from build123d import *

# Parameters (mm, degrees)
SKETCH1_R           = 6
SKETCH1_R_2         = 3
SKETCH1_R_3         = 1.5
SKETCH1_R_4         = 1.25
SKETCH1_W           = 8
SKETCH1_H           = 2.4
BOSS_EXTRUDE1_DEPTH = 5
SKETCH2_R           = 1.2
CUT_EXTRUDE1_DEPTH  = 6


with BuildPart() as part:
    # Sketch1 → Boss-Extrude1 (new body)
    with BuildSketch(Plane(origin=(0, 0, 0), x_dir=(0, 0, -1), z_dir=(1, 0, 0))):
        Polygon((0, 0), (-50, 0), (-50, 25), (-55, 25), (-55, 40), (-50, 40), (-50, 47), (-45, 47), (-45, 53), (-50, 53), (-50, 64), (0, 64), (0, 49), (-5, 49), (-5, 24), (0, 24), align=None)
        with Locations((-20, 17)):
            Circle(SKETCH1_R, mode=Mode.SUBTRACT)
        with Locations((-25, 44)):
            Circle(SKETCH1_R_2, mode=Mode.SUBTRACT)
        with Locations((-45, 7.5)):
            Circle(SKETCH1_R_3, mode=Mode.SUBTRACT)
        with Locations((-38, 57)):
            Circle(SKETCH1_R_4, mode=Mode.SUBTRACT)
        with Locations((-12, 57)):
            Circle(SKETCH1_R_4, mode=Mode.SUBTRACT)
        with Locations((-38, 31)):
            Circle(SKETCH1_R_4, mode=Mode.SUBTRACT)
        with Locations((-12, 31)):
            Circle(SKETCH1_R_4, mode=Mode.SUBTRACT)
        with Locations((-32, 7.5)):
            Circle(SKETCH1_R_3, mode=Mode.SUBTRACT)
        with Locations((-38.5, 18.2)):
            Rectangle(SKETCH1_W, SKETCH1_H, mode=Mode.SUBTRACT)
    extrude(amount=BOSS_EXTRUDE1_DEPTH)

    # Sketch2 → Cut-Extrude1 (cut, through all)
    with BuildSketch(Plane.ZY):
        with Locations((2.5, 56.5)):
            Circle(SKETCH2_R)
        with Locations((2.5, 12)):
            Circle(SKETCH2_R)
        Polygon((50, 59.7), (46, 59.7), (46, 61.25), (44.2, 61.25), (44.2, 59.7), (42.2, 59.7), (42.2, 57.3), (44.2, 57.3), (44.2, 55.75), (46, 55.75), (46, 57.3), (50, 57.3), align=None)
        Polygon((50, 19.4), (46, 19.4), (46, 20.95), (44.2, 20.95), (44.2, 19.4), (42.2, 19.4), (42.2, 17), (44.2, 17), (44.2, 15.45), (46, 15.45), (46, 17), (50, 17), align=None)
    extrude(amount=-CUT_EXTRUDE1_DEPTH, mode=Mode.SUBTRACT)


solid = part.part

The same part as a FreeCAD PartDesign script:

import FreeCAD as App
import Part
import Sketcher

V = App.Vector
Q = App.Units.Quantity

doc = App.newDocument("Part")
params = doc.addObject("Spreadsheet::Sheet", "Params")
for row, (alias, value) in enumerate([
    ("sketch1_diameter", "12 mm"),
    ("sketch1_diameter2", "3 mm"),
    ("sketch1_diameter3", "6 mm"),
    ("sketch1_diameter4", "2.5 mm"),
    ("sketch1_width", "24 mm"),
    ("pad1_length", "5 mm"),
    ("sketch2_diameter", "2.4 mm"),
    ("sketch2_height", "4 mm"),
    ("sketch2_height2", "2 mm"),
    ("sketch2_width", "2.4 mm"),
    ("sketch2_height3", "1.8 mm"),
], start=1):
    params.set(f"A{row}", alias)
    params.set(f"B{row}", "=" + value)
    params.setAlias(f"B{row}", alias)

body = doc.addObject("PartDesign::Body", "Body")

# Sketch on YZ plane
sketch1 = body.newObject("Sketcher::SketchObject", "Sketch")
sketch1.AttachmentSupport = (doc.getObject("YZ_Plane"), [""])
sketch1.MapMode = "FlatFace"
sketch1.addGeometry([
    Part.LineSegment(V(0, 50, 0), V(0, 0, 0)),  # 0
    Part.LineSegment(V(0, 0, 0), V(24, 0, 0)),  # 1
    Part.LineSegment(V(24, 0, 0), V(24, 5, 0)),  # 2
    Part.LineSegment(V(24, 5, 0), V(49, 5, 0)),  # 3
    Part.LineSegment(V(49, 5, 0), V(49, 0, 0)),  # 4
    Part.LineSegment(V(49, 0, 0), V(64, 0, 0)),  # 5
    Part.LineSegment(V(64, 0, 0), V(64, 50, 0)),  # 6
    Part.LineSegment(V(64, 50, 0), V(53, 50, 0)),  # 7
    Part.LineSegment(V(53, 50, 0), V(53, 45, 0)),  # 8
    Part.LineSegment(V(53, 45, 0), V(47, 45, 0)),  # 9
    Part.LineSegment(V(47, 45, 0), V(47, 50, 0)),  # 10
    Part.LineSegment(V(47, 50, 0), V(40, 50, 0)),  # 11
    Part.LineSegment(V(40, 50, 0), V(40, 55, 0)),  # 12
    Part.LineSegment(V(40, 55, 0), V(25, 55, 0)),  # 13
    Part.LineSegment(V(25, 55, 0), V(25, 50, 0)),  # 14
    Part.LineSegment(V(25, 50, 0), V(0, 50, 0)),  # 15
    Part.Circle(V(17, 20, 0), V(0, 0, 1), 6),  # 16
    Part.Circle(V(31, 12, 0), V(0, 0, 1), 1.2),  # 17
    Part.Circle(V(7.5, 32, 0), V(0, 0, 1), 1.5),  # 18
    Part.Circle(V(7.5, 45, 0), V(0, 0, 1), 1.5),  # 19
    Part.LineSegment(V(17, 42.5, 0), V(19.4, 42.5, 0)),  # 20
    Part.LineSegment(V(19.4, 42.5, 0), V(19.4, 34.5, 0)),  # 21
    Part.LineSegment(V(19.4, 34.5, 0), V(17, 34.5, 0)),  # 22
    Part.LineSegment(V(17, 34.5, 0), V(17, 42.5, 0)),  # 23
    Part.Circle(V(31, 38, 0), V(0, 0, 1), 1.2),  # 24
    Part.Circle(V(44, 25, 0), V(0, 0, 1), 3),  # 25
    Part.Circle(V(57, 12, 0), V(0, 0, 1), 1.2),  # 26
    Part.Circle(V(57, 38, 0), V(0, 0, 1), 1.2),  # 27
], False)
sketch1.addConstraint([
    Sketcher.Constraint("Coincident", 0, 2, 1, 1),
    Sketcher.Constraint("Coincident", 1, 2, 2, 1),
    Sketcher.Constraint("Coincident", 2, 2, 3, 1),
    Sketcher.Constraint("Coincident", 3, 2, 4, 1),
    Sketcher.Constraint("Coincident", 4, 2, 5, 1),
    Sketcher.Constraint("Coincident", 5, 2, 6, 1),
    Sketcher.Constraint("Coincident", 6, 2, 7, 1),
    Sketcher.Constraint("Coincident", 7, 2, 8, 1),
    Sketcher.Constraint("Coincident", 8, 2, 9, 1),
    Sketcher.Constraint("Coincident", 9, 2, 10, 1),
    Sketcher.Constraint("Coincident", 10, 2, 11, 1),
    Sketcher.Constraint("Coincident", 11, 2, 12, 1),
    Sketcher.Constraint("Coincident", 12, 2, 13, 1),
    Sketcher.Constraint("Coincident", 13, 2, 14, 1),
    Sketcher.Constraint("Coincident", 14, 2, 15, 1),
    Sketcher.Constraint("Coincident", 15, 2, 0, 1),
    Sketcher.Constraint("Coincident", 20, 2, 21, 1),
    Sketcher.Constraint("Coincident", 21, 2, 22, 1),
    Sketcher.Constraint("Coincident", 22, 2, 23, 1),
    Sketcher.Constraint("Coincident", 23, 2, 20, 1),
    Sketcher.Constraint("Vertical", 0),
    Sketcher.Constraint("Horizontal", 1),
    Sketcher.Constraint("Vertical", 2),
    Sketcher.Constraint("Horizontal", 3),
    Sketcher.Constraint("Vertical", 4),
    Sketcher.Constraint("Horizontal", 5),
    Sketcher.Constraint("Vertical", 6),
    Sketcher.Constraint("Horizontal", 7),
    Sketcher.Constraint("Vertical", 8),
    Sketcher.Constraint("Horizontal", 9),
    Sketcher.Constraint("Vertical", 10),
    Sketcher.Constraint("Horizontal", 11),
    Sketcher.Constraint("Vertical", 12),
    Sketcher.Constraint("Horizontal", 13),
    Sketcher.Constraint("Vertical", 14),
    Sketcher.Constraint("Horizontal", 15),
    Sketcher.Constraint("Horizontal", 20),
    Sketcher.Constraint("Vertical", 21),
    Sketcher.Constraint("Horizontal", 22),
    Sketcher.Constraint("Vertical", 23),
    Sketcher.Constraint("Coincident", 0, 2, -1, 1),
    Sketcher.Constraint("Equal", 18, 19),
    Sketcher.Constraint("Equal", 17, 24),
    Sketcher.Constraint("Equal", 24, 26),
    Sketcher.Constraint("Equal", 26, 27),
    Sketcher.Constraint("PointOnObject", 4, 2, -1),
    Sketcher.Constraint("Horizontal", 17, 3, 26, 3),
    Sketcher.Constraint("Horizontal", 24, 3, 27, 3),
    Sketcher.Constraint("Horizontal", 19, 3, 8, 2),
    Sketcher.Constraint("Horizontal", 7, 2, 10, 2),
    Sketcher.Constraint("Horizontal", 11, 2, 14, 2),
    Sketcher.Constraint("Vertical", 18, 3, 19, 3),
    Sketcher.Constraint("Vertical", 17, 3, 24, 3),
    Sketcher.Constraint("Vertical", 26, 3, 27, 3),
    Sketcher.Constraint("Vertical", 16, 3, 22, 2),
    Sketcher.Constraint("Equal", 5, 13),
    Sketcher.Constraint("Equal", 3, 15),
    Sketcher.Constraint("Equal", 4, 8),
    Sketcher.Constraint("Equal", 10, 12),
    Sketcher.Constraint("Diameter", 16, Q("12 mm")),
    Sketcher.Constraint("Diameter", 18, Q("3 mm")),
    Sketcher.Constraint("Diameter", 25, Q("6 mm")),
    Sketcher.Constraint("Diameter", 17, Q("2.5 mm")),
    Sketcher.Constraint("DistanceX", 1, 1, 1, 2, Q("24 mm")),
    Sketcher.Constraint("DistanceX", 3, 1, 3, 2, Q("25 mm")),
    Sketcher.Constraint("DistanceX", 5, 1, 5, 2, Q("15 mm")),
    Sketcher.Constraint("DistanceX", 7, 2, 7, 1, Q("11 mm")),
    Sketcher.Constraint("DistanceX", 9, 2, 9, 1, Q("6 mm")),
    Sketcher.Constraint("DistanceY", 0, 2, 0, 1, Q("50 mm")),
    Sketcher.Constraint("DistanceY", 2, 1, 2, 2, Q("5 mm")),
    Sketcher.Constraint("DistanceY", 21, 2, 21, 1, Q("8 mm")),
    Sketcher.Constraint("DistanceX", 20, 1, 20, 2, Q("2.4 mm")),
    Sketcher.Constraint("DistanceX", -1, 1, 16, 3, Q("17 mm")),
    Sketcher.Constraint("DistanceY", -1, 1, 16, 3, Q("20 mm")),
    Sketcher.Constraint("DistanceX", -1, 1, 17, 3, Q("31 mm")),
    Sketcher.Constraint("DistanceY", -1, 1, 17, 3, Q("12 mm")),
    Sketcher.Constraint("DistanceY", -1, 1, 18, 3, Q("32 mm")),
    Sketcher.Constraint("DistanceY", -1, 1, 24, 3, Q("38 mm")),
    Sketcher.Constraint("DistanceX", -1, 1, 25, 3, Q("44 mm")),
    Sketcher.Constraint("DistanceY", -1, 1, 25, 3, Q("25 mm")),
    Sketcher.Constraint("DistanceX", -1, 1, 26, 3, Q("57 mm")),
    Sketcher.Constraint("DistanceX", -1, 1, 18, 3, Q("7.5 mm")),
    Sketcher.Constraint("DistanceY", -1, 1, 20, 2, Q("42.5 mm")),
])
sketch1.setExpression("Constraints[59]", "Params.sketch1_diameter")
sketch1.setExpression("Constraints[60]", "Params.sketch1_diameter2")
sketch1.setExpression("Constraints[61]", "Params.sketch1_diameter3")
sketch1.setExpression("Constraints[62]", "Params.sketch1_diameter4")
sketch1.setExpression("Constraints[63]", "Params.sketch1_width")
pad1 = body.newObject("PartDesign::Pad", "Pad")
pad1.Profile = sketch1
pad1.setExpression("Length", "Params.pad1_length")

# Sketch on YZ plane
sketch2 = body.newObject("Sketcher::SketchObject", "Sketch001")
sketch2.AttachmentSupport = (doc.getObject("YZ_Plane"), [""])
sketch2.MapMode = "FlatFace"
sketch2.addGeometry([
    Part.Circle(V(56.5, 2.5, 0), V(0, 0, 1), 1.2),  # 0
    Part.Circle(V(12, 2.5, 0), V(0, 0, 1), 1.2),  # 1
    Part.LineSegment(V(59.7, 50, 0), V(59.7, 46, 0)),  # 2
    Part.LineSegment(V(59.7, 46, 0), V(61.2, 46, 0)),  # 3
    Part.LineSegment(V(61.2, 46, 0), V(61.2, 44.2, 0)),  # 4
    Part.LineSegment(V(61.2, 44.2, 0), V(59.7, 44.2, 0)),  # 5
    Part.LineSegment(V(59.7, 44.2, 0), V(59.7, 42.2, 0)),  # 6
    Part.LineSegment(V(59.7, 42.2, 0), V(57.3, 42.2, 0)),  # 7
    Part.LineSegment(V(57.3, 42.2, 0), V(57.3, 44.2, 0)),  # 8
    Part.LineSegment(V(57.3, 44.2, 0), V(55.8, 44.2, 0)),  # 9
    Part.LineSegment(V(55.8, 44.2, 0), V(55.8, 46, 0)),  # 10
    Part.LineSegment(V(55.8, 46, 0), V(57.3, 46, 0)),  # 11
    Part.LineSegment(V(57.3, 46, 0), V(57.3, 50, 0)),  # 12
    Part.LineSegment(V(57.3, 50, 0), V(59.7, 50, 0)),  # 13
    Part.LineSegment(V(19.4, 50, 0), V(19.4, 46, 0)),  # 14
    Part.LineSegment(V(19.4, 46, 0), V(20.9, 46, 0)),  # 15
    Part.LineSegment(V(20.9, 46, 0), V(20.9, 44.2, 0)),  # 16
    Part.LineSegment(V(20.9, 44.2, 0), V(19.4, 44.2, 0)),  # 17
    Part.LineSegment(V(19.4, 44.2, 0), V(19.4, 42.2, 0)),  # 18
    Part.LineSegment(V(19.4, 42.2, 0), V(17, 42.2, 0)),  # 19
    Part.LineSegment(V(17, 42.2, 0), V(17, 44.2, 0)),  # 20
    Part.LineSegment(V(17, 44.2, 0), V(15.4, 44.2, 0)),  # 21
    Part.LineSegment(V(15.4, 44.2, 0), V(15.4, 46, 0)),  # 22
    Part.LineSegment(V(15.4, 46, 0), V(17, 46, 0)),  # 23
    Part.LineSegment(V(17, 46, 0), V(17, 50, 0)),  # 24
    Part.LineSegment(V(17, 50, 0), V(19.4, 50, 0)),  # 25
], False)
sketch2.addConstraint([
    Sketcher.Constraint("Coincident", 2, 2, 3, 1),
    Sketcher.Constraint("Coincident", 3, 2, 4, 1),
    Sketcher.Constraint("Coincident", 4, 2, 5, 1),
    Sketcher.Constraint("Coincident", 5, 2, 6, 1),
    Sketcher.Constraint("Coincident", 6, 2, 7, 1),
    Sketcher.Constraint("Coincident", 7, 2, 8, 1),
    Sketcher.Constraint("Coincident", 8, 2, 9, 1),
    Sketcher.Constraint("Coincident", 9, 2, 10, 1),
    Sketcher.Constraint("Coincident", 10, 2, 11, 1),
    Sketcher.Constraint("Coincident", 11, 2, 12, 1),
    Sketcher.Constraint("Coincident", 12, 2, 13, 1),
    Sketcher.Constraint("Coincident", 13, 2, 2, 1),
    Sketcher.Constraint("Coincident", 14, 2, 15, 1),
    Sketcher.Constraint("Coincident", 15, 2, 16, 1),
    Sketcher.Constraint("Coincident", 16, 2, 17, 1),
    Sketcher.Constraint("Coincident", 17, 2, 18, 1),
    Sketcher.Constraint("Coincident", 18, 2, 19, 1),
    Sketcher.Constraint("Coincident", 19, 2, 20, 1),
    Sketcher.Constraint("Coincident", 20, 2, 21, 1),
    Sketcher.Constraint("Coincident", 21, 2, 22, 1),
    Sketcher.Constraint("Coincident", 22, 2, 23, 1),
    Sketcher.Constraint("Coincident", 23, 2, 24, 1),
    Sketcher.Constraint("Coincident", 24, 2, 25, 1),
    Sketcher.Constraint("Coincident", 25, 2, 14, 1),
    Sketcher.Constraint("Vertical", 2),
    Sketcher.Constraint("Horizontal", 3),
    Sketcher.Constraint("Vertical", 4),
    Sketcher.Constraint("Horizontal", 5),
    Sketcher.Constraint("Vertical", 6),
    Sketcher.Constraint("Horizontal", 7),
    Sketcher.Constraint("Vertical", 8),
    Sketcher.Constraint("Horizontal", 9),
    Sketcher.Constraint("Vertical", 10),
    Sketcher.Constraint("Horizontal", 11),
    Sketcher.Constraint("Vertical", 12),
    Sketcher.Constraint("Horizontal", 13),
    Sketcher.Constraint("Vertical", 14),
    Sketcher.Constraint("Horizontal", 15),
    Sketcher.Constraint("Vertical", 16),
    Sketcher.Constraint("Horizontal", 17),
    Sketcher.Constraint("Vertical", 18),
    Sketcher.Constraint("Horizontal", 19),
    Sketcher.Constraint("Vertical", 20),
    Sketcher.Constraint("Horizontal", 21),
    Sketcher.Constraint("Vertical", 22),
    Sketcher.Constraint("Horizontal", 23),
    Sketcher.Constraint("Vertical", 24),
    Sketcher.Constraint("Horizontal", 25),
    Sketcher.Constraint("Equal", 0, 1),
    Sketcher.Constraint("Horizontal", 0, 3, 1, 3),
    Sketcher.Constraint("Horizontal", 5, 2, 8, 2),
    Sketcher.Constraint("Horizontal", 3, 2, 10, 2),
    Sketcher.Constraint("Horizontal", 11, 2, 14, 2),
    Sketcher.Constraint("Horizontal", 9, 2, 16, 2),
    Sketcher.Constraint("Horizontal", 7, 2, 18, 2),
    Sketcher.Constraint("Horizontal", 17, 2, 20, 2),
    Sketcher.Constraint("Horizontal", 15, 2, 22, 2),
    Sketcher.Constraint("Horizontal", 13, 2, 24, 2),
    Sketcher.Constraint("Vertical", 2, 2, 5, 2),
    Sketcher.Constraint("Vertical", 8, 2, 11, 2),
    Sketcher.Constraint("Vertical", 14, 2, 17, 2),
    Sketcher.Constraint("Vertical", 20, 2, 23, 2),
    Sketcher.Constraint("Equal", 5, 9),
    Sketcher.Constraint("Equal", 11, 15),
    Sketcher.Constraint("Equal", 13, 19),
    Sketcher.Constraint("Equal", 17, 21),
    Sketcher.Constraint("Diameter", 0, Q("2.4 mm")),
    Sketcher.Constraint("DistanceY", 2, 2, 2, 1, Q("4 mm")),
    Sketcher.Constraint("DistanceY", 6, 2, 6, 1, Q("2 mm")),
    Sketcher.Constraint("DistanceX", 7, 2, 7, 1, Q("2.4 mm")),
    Sketcher.Constraint("DistanceY", 4, 2, 4, 1, Q("1.8 mm")),
    Sketcher.Constraint("DistanceX", -1, 1, 1, 3, Q("12 mm")),
    Sketcher.Constraint("DistanceY", -1, 1, 2, 2, Q("46 mm")),
    Sketcher.Constraint("DistanceX", -1, 1, 19, 2, Q("17 mm")),
    Sketcher.Constraint("DistanceX", 3, 1, 3, 2, Q("1.55 mm")),
    Sketcher.Constraint("DistanceX", -1, 1, 0, 3, Q("56.5 mm")),
    Sketcher.Constraint("DistanceY", -1, 1, 0, 3, Q("2.5 mm")),
    Sketcher.Constraint("DistanceX", -1, 1, 2, 2, Q("59.7 mm")),
])
sketch2.setExpression("Constraints[66]", "Params.sketch2_diameter")
sketch2.setExpression("Constraints[67]", "Params.sketch2_height")
sketch2.setExpression("Constraints[68]", "Params.sketch2_height2")
sketch2.setExpression("Constraints[69]", "Params.sketch2_width")
sketch2.setExpression("Constraints[70]", "Params.sketch2_height3")
pocket1 = body.newObject("PartDesign::Pocket", "Pocket")
pocket1.Profile = sketch2
pocket1.Type = "ThroughAll"
pocket1.Reversed = True

doc.recompute()
